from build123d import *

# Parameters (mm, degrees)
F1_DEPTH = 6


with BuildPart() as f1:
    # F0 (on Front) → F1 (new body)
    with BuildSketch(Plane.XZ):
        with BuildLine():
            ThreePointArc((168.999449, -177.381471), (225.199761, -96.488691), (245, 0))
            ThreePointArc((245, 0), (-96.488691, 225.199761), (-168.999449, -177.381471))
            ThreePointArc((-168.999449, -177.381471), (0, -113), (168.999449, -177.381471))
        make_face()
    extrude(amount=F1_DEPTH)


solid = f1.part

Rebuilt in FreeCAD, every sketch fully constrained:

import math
import FreeCAD as App
import Part
import Sketcher

V = App.Vector
Q = App.Units.Quantity

doc = App.newDocument("Part")
params = doc.addObject("Spreadsheet::Sheet", "Params")
for row, (alias, value) in enumerate([
    ("sketch1_radius", "245 mm"),
    ("pad1_length", "6 mm"),
], start=1):
    params.set(f"A{row}", alias)
    params.set(f"B{row}", "=" + value)
    params.setAlias(f"B{row}", alias)

body = doc.addObject("PartDesign::Body", "Body")

sketch1 = body.newObject("Sketcher::SketchObject", "Sketch")
sketch1.AttachmentSupport = (doc.getObject("XZ_Plane"), [""])
sketch1.MapMode = "FlatFace"
sketch1.addGeometry(Part.ArcOfCircle(Part.Circle(V(0, 0, 0), V(0, 0, 1), 245), math.radians(-46), math.radians(0)), False)
sketch1.addGeometry(Part.ArcOfCircle(Part.Circle(V(0, 0, 0), V(0, 0, 1), 245), math.radians(0), math.radians(226)), False)
sketch1.addGeometry(Part.ArcOfCircle(Part.Circle(V(0, -367, 0), V(0, 0, 1), 254), math.radians(48), math.radians(132)), False)
sketch1.addConstraint(Sketcher.Constraint("Tangent", 0, 2, 1, 1))
sketch1.addConstraint(Sketcher.Constraint("Coincident", 1, 2, 2, 2))
sketch1.addConstraint(Sketcher.Constraint("Coincident", 2, 1, 0, 1))
sketch1.addConstraint(Sketcher.Constraint("Coincident", 0, 3, -1, 1))
sketch1.addConstraint(Sketcher.Constraint("Symmetric", 1, 2, 2, 1, -2))
sketch1.addConstraint(Sketcher.Constraint("PointOnObject", 0, 2, -1))
sketch1.addConstraint(Sketcher.Constraint("Radius", 1, Q("245 mm")))
sketch1.addConstraint(Sketcher.Constraint("Radius", 2, Q("254.000002 mm")))
sketch1.addConstraint(Sketcher.Constraint("DistanceX", 1, 2, 2, 1, Q("337.998898 mm")))
sketch1.setExpression("Constraints[6]", "Params.sketch1_radius")
pad1 = body.newObject("PartDesign::Pad", "Pad")
pad1.Profile = sketch1
pad1.setExpression("Length", "Params.pad1_length")

doc.recompute()
